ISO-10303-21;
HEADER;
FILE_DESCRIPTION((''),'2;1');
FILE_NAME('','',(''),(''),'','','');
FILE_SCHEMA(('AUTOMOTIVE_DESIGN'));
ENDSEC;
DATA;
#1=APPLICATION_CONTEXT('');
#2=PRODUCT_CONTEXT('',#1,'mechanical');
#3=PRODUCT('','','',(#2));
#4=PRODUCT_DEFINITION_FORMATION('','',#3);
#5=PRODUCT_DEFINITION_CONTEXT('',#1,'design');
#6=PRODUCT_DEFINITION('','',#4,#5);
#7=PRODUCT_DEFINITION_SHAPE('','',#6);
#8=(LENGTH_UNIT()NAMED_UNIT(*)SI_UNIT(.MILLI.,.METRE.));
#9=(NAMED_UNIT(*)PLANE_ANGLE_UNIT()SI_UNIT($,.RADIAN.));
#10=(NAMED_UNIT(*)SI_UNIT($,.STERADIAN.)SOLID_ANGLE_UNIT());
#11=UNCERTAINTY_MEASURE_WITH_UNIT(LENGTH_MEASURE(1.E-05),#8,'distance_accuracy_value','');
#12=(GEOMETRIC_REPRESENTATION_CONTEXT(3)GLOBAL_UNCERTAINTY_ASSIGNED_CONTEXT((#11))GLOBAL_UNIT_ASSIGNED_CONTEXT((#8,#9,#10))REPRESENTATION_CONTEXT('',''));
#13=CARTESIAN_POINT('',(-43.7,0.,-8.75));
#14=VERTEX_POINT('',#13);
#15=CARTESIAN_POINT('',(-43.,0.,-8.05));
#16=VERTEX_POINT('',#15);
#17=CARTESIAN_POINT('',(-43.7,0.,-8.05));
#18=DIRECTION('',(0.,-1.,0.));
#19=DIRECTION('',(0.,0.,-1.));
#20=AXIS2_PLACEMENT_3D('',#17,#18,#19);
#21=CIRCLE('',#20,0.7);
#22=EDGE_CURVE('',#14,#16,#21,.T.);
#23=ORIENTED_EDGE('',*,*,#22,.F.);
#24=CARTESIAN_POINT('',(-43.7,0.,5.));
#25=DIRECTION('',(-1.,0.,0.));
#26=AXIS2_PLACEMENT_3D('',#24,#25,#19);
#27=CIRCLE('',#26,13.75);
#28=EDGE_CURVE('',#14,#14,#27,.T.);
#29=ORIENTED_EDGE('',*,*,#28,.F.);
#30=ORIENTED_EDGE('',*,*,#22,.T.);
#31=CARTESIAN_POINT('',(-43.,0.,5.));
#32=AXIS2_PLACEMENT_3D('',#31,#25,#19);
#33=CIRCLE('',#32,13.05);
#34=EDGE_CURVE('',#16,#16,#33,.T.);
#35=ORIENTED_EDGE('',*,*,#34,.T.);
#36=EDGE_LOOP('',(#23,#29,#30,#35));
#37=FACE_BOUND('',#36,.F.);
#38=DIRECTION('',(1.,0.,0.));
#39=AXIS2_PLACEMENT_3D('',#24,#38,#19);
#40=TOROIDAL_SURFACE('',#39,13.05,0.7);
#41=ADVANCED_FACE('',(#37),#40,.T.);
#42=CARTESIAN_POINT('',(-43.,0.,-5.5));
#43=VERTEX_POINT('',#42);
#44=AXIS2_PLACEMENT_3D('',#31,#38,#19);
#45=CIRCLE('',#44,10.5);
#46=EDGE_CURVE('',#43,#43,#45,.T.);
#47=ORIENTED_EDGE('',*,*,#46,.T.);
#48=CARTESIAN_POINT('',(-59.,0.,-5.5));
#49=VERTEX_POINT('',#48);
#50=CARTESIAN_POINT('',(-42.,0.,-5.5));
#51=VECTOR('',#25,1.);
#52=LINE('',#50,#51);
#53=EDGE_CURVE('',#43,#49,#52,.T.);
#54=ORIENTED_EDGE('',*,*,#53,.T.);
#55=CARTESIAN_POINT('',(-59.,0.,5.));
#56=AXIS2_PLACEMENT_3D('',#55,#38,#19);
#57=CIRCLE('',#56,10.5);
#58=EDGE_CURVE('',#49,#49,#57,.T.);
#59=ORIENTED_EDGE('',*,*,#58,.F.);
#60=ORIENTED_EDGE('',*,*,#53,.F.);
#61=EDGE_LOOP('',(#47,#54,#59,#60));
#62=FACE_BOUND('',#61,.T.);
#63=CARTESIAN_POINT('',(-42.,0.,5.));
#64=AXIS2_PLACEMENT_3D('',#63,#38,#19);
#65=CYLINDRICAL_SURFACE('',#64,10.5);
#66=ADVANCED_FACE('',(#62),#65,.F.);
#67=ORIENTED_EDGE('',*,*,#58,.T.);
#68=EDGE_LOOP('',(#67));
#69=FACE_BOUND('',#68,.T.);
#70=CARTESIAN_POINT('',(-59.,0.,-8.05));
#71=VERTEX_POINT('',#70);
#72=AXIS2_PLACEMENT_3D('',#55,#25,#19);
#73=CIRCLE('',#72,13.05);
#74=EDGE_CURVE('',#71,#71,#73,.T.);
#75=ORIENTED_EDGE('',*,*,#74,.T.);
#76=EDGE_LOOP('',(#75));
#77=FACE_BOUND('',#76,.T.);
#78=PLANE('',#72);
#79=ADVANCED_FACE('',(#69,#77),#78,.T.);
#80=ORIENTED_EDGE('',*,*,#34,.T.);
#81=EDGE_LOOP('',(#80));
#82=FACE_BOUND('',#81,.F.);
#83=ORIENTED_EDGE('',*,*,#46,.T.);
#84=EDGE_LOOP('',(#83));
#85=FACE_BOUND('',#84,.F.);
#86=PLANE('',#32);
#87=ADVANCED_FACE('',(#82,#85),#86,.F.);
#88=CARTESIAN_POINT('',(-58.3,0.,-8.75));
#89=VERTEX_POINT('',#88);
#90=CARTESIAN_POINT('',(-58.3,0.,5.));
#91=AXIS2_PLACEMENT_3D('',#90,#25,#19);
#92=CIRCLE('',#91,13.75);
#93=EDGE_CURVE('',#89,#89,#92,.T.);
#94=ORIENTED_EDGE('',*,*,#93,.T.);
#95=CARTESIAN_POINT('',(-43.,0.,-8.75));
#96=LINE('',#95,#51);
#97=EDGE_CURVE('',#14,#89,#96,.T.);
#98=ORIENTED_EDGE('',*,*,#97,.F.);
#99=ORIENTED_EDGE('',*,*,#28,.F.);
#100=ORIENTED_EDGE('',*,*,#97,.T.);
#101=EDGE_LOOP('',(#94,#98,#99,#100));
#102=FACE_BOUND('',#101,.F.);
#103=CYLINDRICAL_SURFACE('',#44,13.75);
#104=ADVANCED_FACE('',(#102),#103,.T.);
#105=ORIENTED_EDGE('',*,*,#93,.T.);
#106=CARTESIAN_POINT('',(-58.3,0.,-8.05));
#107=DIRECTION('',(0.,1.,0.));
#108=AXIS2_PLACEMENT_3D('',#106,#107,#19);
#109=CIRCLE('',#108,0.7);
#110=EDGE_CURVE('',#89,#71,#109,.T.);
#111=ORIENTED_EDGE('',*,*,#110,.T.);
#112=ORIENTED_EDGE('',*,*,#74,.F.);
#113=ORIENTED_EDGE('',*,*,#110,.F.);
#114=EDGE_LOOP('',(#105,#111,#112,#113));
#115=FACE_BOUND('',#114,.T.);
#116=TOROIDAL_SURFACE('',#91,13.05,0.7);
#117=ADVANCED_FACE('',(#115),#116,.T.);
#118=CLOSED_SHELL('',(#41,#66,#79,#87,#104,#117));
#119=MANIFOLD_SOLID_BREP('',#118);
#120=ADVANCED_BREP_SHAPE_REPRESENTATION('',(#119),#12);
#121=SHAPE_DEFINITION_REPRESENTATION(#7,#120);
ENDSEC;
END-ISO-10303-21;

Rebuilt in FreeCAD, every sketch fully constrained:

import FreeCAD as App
import Part
import Sketcher

V = App.Vector


def edges_at(feature, points):
    """Names of the edges that pass closest to the given points."""
    edges = feature.Shape.Edges
    near = lambda p: min(range(len(edges)), key=lambda i: edges[i].distToShape(Part.Vertex(*p))[0])
    return sorted({f"Edge{near(p) + 1}" for p in points})

doc = App.newDocument("Part")
body = doc.addObject("PartDesign::Body", "Body")

# Sketch on XY plane
sketch1 = body.newObject("Sketcher::SketchObject", "Sketch")
sketch1.AttachmentSupport = (doc.getObject("XY_Plane"), [""])
sketch1.MapMode = "FlatFace"
sketch1.AttachmentOffset = App.Placement(V(0, 0, -1), App.Rotation())
sketch1.addGeometry(Part.Circle(V(0, 0, 0), V(0, 0, 1), 10), False)
sketch1.addConstraint([
    Sketcher.Constraint("Coincident", 0, 3, -1, 1),
    Sketcher.Constraint("Diameter", 0, 21.0),
])
pad1 = body.newObject("PartDesign::Pad", "Pad")
pad1.Profile = sketch1
pad1.Length = 20
body2 = doc.addObject("PartDesign::Body", "Body001")

# Sketch on XY plane
sketch2 = body2.newObject("Sketcher::SketchObject", "Sketch001")
sketch2.AttachmentSupport = (doc.getObject("XY_Plane001"), [""])
sketch2.MapMode = "FlatFace"
sketch2.addGeometry(Part.Circle(V(0, 0, 0), V(0, 0, 1), 14), False)
sketch2.addConstraint([
    Sketcher.Constraint("Coincident", 0, 3, -1, 1),
    Sketcher.Constraint("Diameter", 0, 27.5),
])
pad2 = body2.newObject("PartDesign::Pad", "Pad001")
pad2.Profile = sketch2
pad2.Length = 16
doc.recompute()

boolean = body2.newObject("PartDesign::Boolean", "Boolean")
boolean.Type = "Cut"
boolean.addObjects([body])
doc.recompute()

fillet = body2.newObject("PartDesign::Fillet", "Fillet")
fillet.Base = (boolean, edges_at(boolean, [(-13.75, 0, 16), (-13.75, 0, 0)]))
fillet.Radius = 0.7
body3 = doc.addObject("PartDesign::Body", "Body002")
doc.recompute()

body2.Placement = App.Placement(V(0, 0, 0), App.Rotation(V(0, 1, 0), 90))
boolean2 = body3.newObject("PartDesign::Boolean", "Boolean001")
boolean2.Type = "Fuse"
boolean2.addObjects([body2])
body4 = doc.addObject("PartDesign::Body", "Body003")
doc.recompute()

body3.Placement = App.Placement(V(43, 0, 5), App.Rotation(V(0, 0, 1), 0))
boolean3 = body4.newObject("PartDesign::Boolean", "Boolean002")
boolean3.Type = "Fuse"
boolean3.addObjects([body3])
body5 = doc.addObject("PartDesign::Body", "Body004")
doc.recompute()

body4.Placement = App.Placement(V(0, 0, 0), App.Rotation(V(0, 0, 1), 180))
boolean4 = body5.newObject("PartDesign::Boolean", "Boolean003")
boolean4.Type = "Fuse"
boolean4.addObjects([body4])

doc.recompute()
